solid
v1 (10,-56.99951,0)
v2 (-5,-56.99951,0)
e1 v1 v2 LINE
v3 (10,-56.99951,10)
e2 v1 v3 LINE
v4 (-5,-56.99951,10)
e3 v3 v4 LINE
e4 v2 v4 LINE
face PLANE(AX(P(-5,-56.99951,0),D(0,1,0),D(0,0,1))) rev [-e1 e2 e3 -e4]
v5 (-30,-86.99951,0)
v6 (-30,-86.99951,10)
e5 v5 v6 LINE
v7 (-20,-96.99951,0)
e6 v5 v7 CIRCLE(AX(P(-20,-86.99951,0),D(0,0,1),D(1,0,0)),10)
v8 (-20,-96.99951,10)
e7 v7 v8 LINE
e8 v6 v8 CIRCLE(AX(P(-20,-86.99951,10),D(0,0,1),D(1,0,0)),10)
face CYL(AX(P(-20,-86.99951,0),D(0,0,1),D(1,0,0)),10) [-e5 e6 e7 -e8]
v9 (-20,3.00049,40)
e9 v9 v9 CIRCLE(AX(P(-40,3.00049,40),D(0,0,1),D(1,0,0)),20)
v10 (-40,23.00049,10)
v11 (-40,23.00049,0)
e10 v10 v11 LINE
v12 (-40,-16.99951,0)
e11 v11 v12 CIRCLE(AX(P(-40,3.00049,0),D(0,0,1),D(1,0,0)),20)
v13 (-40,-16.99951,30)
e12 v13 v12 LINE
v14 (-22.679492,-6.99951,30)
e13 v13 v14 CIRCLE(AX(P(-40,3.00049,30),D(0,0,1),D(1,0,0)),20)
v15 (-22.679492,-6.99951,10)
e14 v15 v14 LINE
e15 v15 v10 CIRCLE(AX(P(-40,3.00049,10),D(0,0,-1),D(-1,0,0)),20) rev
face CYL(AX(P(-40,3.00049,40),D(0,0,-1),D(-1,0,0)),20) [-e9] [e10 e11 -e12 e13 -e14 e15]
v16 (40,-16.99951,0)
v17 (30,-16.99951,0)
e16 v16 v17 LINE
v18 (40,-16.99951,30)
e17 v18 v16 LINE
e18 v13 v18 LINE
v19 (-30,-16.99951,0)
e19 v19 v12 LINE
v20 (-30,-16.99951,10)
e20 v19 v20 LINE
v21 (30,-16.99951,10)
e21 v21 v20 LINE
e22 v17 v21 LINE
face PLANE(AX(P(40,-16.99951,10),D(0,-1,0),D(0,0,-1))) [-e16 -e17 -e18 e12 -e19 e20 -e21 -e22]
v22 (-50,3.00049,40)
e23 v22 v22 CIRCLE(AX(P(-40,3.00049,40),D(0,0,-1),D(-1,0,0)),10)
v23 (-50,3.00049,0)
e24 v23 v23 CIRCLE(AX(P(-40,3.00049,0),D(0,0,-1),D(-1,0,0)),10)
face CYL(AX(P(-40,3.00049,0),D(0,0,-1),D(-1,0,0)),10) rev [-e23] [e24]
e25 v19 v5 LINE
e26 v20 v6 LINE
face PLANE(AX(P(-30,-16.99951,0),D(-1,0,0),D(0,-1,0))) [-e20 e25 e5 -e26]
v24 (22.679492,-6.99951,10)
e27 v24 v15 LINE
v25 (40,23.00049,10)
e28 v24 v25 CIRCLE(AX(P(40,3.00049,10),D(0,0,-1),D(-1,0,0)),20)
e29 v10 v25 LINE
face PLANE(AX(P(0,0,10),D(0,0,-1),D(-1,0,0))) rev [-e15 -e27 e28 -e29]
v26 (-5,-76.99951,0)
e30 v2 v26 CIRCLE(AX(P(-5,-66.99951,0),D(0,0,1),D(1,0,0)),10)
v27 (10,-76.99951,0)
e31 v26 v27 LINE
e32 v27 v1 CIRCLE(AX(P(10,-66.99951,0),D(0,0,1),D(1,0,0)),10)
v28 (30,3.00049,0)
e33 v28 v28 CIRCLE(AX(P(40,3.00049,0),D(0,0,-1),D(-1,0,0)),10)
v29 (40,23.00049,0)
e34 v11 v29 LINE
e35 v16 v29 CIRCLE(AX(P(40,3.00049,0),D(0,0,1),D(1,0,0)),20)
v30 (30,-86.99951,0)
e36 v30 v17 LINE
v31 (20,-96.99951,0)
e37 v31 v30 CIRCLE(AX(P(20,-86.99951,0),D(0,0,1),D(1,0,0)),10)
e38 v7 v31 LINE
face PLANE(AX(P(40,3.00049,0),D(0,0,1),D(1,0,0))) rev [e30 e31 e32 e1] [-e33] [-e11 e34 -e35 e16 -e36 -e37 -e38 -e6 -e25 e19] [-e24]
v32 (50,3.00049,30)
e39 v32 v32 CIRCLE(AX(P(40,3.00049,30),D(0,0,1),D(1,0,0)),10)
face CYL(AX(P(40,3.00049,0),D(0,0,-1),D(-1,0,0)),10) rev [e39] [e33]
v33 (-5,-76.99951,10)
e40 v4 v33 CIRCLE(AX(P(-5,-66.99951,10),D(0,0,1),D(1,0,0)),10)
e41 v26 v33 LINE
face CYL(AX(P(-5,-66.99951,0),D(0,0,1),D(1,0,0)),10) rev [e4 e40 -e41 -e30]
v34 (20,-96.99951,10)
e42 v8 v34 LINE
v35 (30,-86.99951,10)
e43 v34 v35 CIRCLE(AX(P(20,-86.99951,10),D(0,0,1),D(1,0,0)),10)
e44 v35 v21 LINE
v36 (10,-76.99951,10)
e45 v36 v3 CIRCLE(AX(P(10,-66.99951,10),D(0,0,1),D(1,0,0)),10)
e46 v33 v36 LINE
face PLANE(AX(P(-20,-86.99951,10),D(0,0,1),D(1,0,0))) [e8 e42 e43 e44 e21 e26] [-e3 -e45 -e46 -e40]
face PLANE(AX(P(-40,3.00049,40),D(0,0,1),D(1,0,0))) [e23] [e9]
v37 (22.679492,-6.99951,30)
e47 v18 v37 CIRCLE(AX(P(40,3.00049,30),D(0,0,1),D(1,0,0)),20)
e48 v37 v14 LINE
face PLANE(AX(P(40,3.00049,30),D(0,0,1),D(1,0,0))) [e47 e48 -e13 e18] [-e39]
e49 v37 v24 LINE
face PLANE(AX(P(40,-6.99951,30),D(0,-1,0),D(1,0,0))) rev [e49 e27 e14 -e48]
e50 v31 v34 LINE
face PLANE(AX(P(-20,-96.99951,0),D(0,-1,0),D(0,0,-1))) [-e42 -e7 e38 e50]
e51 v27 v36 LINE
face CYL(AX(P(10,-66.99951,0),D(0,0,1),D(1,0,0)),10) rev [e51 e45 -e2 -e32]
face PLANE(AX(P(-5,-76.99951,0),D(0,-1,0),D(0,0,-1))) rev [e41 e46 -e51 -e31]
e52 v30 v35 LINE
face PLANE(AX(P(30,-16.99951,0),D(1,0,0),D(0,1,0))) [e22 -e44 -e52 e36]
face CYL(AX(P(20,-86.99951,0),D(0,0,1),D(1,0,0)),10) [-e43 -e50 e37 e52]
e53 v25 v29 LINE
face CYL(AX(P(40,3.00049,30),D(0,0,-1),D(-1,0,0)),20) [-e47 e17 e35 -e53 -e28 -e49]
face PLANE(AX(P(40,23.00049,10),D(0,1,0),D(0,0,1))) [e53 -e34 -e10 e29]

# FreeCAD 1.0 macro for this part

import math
import FreeCAD as App
import Part
import Sketcher
from FreeCAD import Vector

doc = App.newDocument("Part")
params = doc.addObject("Spreadsheet::Sheet", "Params")
for row, (alias, value) in enumerate([
    ("sketch1_diameter", "40 mm"),
    ("pad1_length", "30 mm"),
    ("sketch2_diameter", "40 mm"),
    ("pad2_length", "40 mm"),
    ("sketch3_width", "80 mm"),
    ("sketch3_height", "40 mm"),
    ("pad3_length", "10 mm"),
    ("sketch4_width", "80 mm"),
    ("sketch4_height", "10 mm"),
    ("pad4_length", "20 mm"),
    ("sketch5_radius", "10 mm"),
    ("sketch5_width", "60 mm"),
    ("sketch5_height", "70 mm"),
    ("pad5_length", "10 mm"),
    ("sketch6_radius", "10 mm"),
    ("sketch6_width", "15 mm"),
    ("pocket1_length", "10 mm"),
    ("sketch7_diameter", "20 mm"),
    ("hole_diameter", "20 mm"),
], start=1):
    params.set(f"A{row}", alias)
    params.set(f"B{row}", "=" + value)
    params.setAlias(f"B{row}", alias)

body = doc.addObject("PartDesign::Body", "Body")

sketch1 = body.newObject("Sketcher::SketchObject", "Sketch")
sketch1.AttachmentSupport = (doc.getObject("XY_Plane"), [""])
sketch1.MapMode = "FlatFace"
sketch1.addGeometry(Part.Circle(Vector(40, 3.00049, 0), Vector(0, 0, 1), 20), False)
sketch1.addConstraint([
    Sketcher.Constraint("Diameter", 0, 40.0),
    Sketcher.Constraint("DistanceX", -1, 1, 0, 3, 40.0),
    Sketcher.Constraint("DistanceY", -1, 1, 0, 3, 3.00049),
])
sketch1.setExpression("Constraints[0]", "Params.sketch1_diameter")
pad1 = body.newObject("PartDesign::Pad", "Pad")
pad1.Profile = sketch1
pad1.setExpression("Length", "Params.pad1_length")
body2 = doc.addObject("PartDesign::Body", "Body001")

sketch2 = body2.newObject("Sketcher::SketchObject", "Sketch001")
sketch2.AttachmentSupport = (doc.getObject("XY_Plane001"), [""])
sketch2.MapMode = "FlatFace"
sketch2.addGeometry(Part.Circle(Vector(-40, 3.00049, 0), Vector(0, 0, 1), 20), False)
sketch2.addConstraint([
    Sketcher.Constraint("Diameter", 0, 40.0),
    Sketcher.Constraint("DistanceX", 0, 3, -1, 1, 40.0),
    Sketcher.Constraint("DistanceY", -1, 1, 0, 3, 3.00049),
])
sketch2.setExpression("Constraints[0]", "Params.sketch2_diameter")
pad2 = body2.newObject("PartDesign::Pad", "Pad001")
pad2.Profile = sketch2
pad2.setExpression("Length", "Params.pad2_length")
body.AllowCompound = True
doc.recompute()

boolean = body.newObject("PartDesign::Boolean", "Boolean")
boolean.Type = "Fuse"
boolean.addObjects([body2])

sketch3 = body.newObject("Sketcher::SketchObject", "Sketch002")
sketch3.AttachmentSupport = (doc.getObject("XY_Plane"), [""])
sketch3.MapMode = "FlatFace"
sketch3.addGeometry([
    Part.LineSegment(Vector(40, 23.00049, 0), Vector(40, -16.99951, 0)),
    Part.LineSegment(Vector(40, -16.99951, 0), Vector(-40, -16.99951, 0)),
    Part.LineSegment(Vector(-40, -16.99951, 0), Vector(-40, 23.00049, 0)),
    Part.LineSegment(Vector(-40, 23.00049, 0), Vector(40, 23.00049, 0)),
], False)
sketch3.addConstraint([
    Sketcher.Constraint("Coincident", 0, 2, 1, 1),
    Sketcher.Constraint("Coincident", 1, 2, 2, 1),
    Sketcher.Constraint("Coincident", 2, 2, 3, 1),
    Sketcher.Constraint("Coincident", 3, 2, 0, 1),
    Sketcher.Constraint("Vertical", 0),
    Sketcher.Constraint("Horizontal", 1),
    Sketcher.Constraint("Vertical", 2),
    Sketcher.Constraint("Horizontal", 3),
    Sketcher.Constraint("DistanceX", 1, 2, 1, 1, 80.0),
    Sketcher.Constraint("DistanceY", 0, 2, 0, 1, 40.0),
    Sketcher.Constraint("DistanceX", -1, 1, 0, 2, 40.0),
    Sketcher.Constraint("DistanceY", 0, 2, -1, 1, 16.99951),
])
sketch3.setExpression("Constraints[8]", "Params.sketch3_width")
sketch3.setExpression("Constraints[9]", "Params.sketch3_height")
pad3 = body.newObject("PartDesign::Pad", "Pad002")
pad3.Profile = sketch3
pad3.setExpression("Length", "Params.pad3_length")

sketch4 = body.newObject("Sketcher::SketchObject", "Sketch003")
sketch4.AttachmentSupport = (doc.getObject("XY_Plane"), [""])
sketch4.MapMode = "FlatFace"
sketch4.AttachmentOffset = App.Placement(Vector(0, 0, 10), App.Rotation())
sketch4.addGeometry([
    Part.LineSegment(Vector(-40, -6.99951, 0), Vector(-40, -16.99951, 0)),
    Part.LineSegment(Vector(-40, -16.99951, 0), Vector(40, -16.99951, 0)),
    Part.LineSegment(Vector(40, -16.99951, 0), Vector(40, -6.99951, 0)),
    Part.LineSegment(Vector(40, -6.99951, 0), Vector(-40, -6.99951, 0)),
], False)
sketch4.addConstraint([
    Sketcher.Constraint("Coincident", 0, 2, 1, 1),
    Sketcher.Constraint("Coincident", 1, 2, 2, 1),
    Sketcher.Constraint("Coincident", 2, 2, 3, 1),
    Sketcher.Constraint("Coincident", 3, 2, 0, 1),
    Sketcher.Constraint("Vertical", 0),
    Sketcher.Constraint("Horizontal", 1),
    Sketcher.Constraint("Vertical", 2),
    Sketcher.Constraint("Horizontal", 3),
    Sketcher.Constraint("DistanceX", 1, 1, 1, 2, 80.0),
    Sketcher.Constraint("DistanceY", 0, 2, 0, 1, 10.0),
    Sketcher.Constraint("DistanceX", 0, 2, -1, 1, 40.0),
    Sketcher.Constraint("DistanceY", 0, 2, -1, 1, 16.99951),
])
sketch4.setExpression("Constraints[8]", "Params.sketch4_width")
sketch4.setExpression("Constraints[9]", "Params.sketch4_height")
pad4 = body.newObject("PartDesign::Pad", "Pad003")
pad4.Profile = sketch4
pad4.setExpression("Length", "Params.pad4_length")

sketch5 = body.newObject("Sketcher::SketchObject", "Sketch004")
sketch5.AttachmentSupport = (doc.getObject("XY_Plane"), [""])
sketch5.MapMode = "FlatFace"
sketch5.AttachmentOffset = App.Placement(Vector(0, 0, 10), App.Rotation())
sketch5.addGeometry([
    Part.LineSegment(Vector(30, -16.99951, 0), Vector(-30, -16.99951, 0)),
    Part.LineSegment(Vector(-30, -16.99951, 0), Vector(-30, -86.99951, 0)),
    Part.ArcOfCircle(Part.Circle(Vector(-20, -86.99951, 0), Vector(0, 0, 1), 10), math.radians(180), math.radians(270)),
    Part.LineSegment(Vector(-20, -96.99951, 0), Vector(20, -96.99951, 0)),
    Part.ArcOfCircle(Part.Circle(Vector(20, -86.99951, 0), Vector(0, 0, 1), 10), math.radians(-90), math.radians(0)),
    Part.LineSegment(Vector(30, -86.99951, 0), Vector(30, -16.99951, 0)),
], False)
sketch5.addConstraint([
    Sketcher.Constraint("Coincident", 0, 2, 1, 1),
    Sketcher.Constraint("Tangent", 1, 2, 2, 1),
    Sketcher.Constraint("Tangent", 2, 2, 3, 1),
    Sketcher.Constraint("Tangent", 3, 2, 4, 1),
    Sketcher.Constraint("Tangent", 4, 2, 5, 1),
    Sketcher.Constraint("Coincident", 5, 2, 0, 1),
    Sketcher.Constraint("Horizontal", 0),
    Sketcher.Constraint("Vertical", 1),
    Sketcher.Constraint("Horizontal", 3),
    Sketcher.Constraint("Vertical", 5),
    Sketcher.Constraint("Equal", 2, 4),
    Sketcher.Constraint("Radius", 2, 10.0),
    Sketcher.Constraint("DistanceX", 0, 2, 0, 1, 60.0),
    Sketcher.Constraint("DistanceY", 1, 2, 1, 1, 70.0),
    Sketcher.Constraint("DistanceX", 2, 3, -1, 1, 20.0),
    Sketcher.Constraint("DistanceY", 2, 3, -1, 1, 86.99951),
])
sketch5.setExpression("Constraints[11]", "Params.sketch5_radius")
sketch5.setExpression("Constraints[12]", "Params.sketch5_width")
sketch5.setExpression("Constraints[13]", "Params.sketch5_height")
pad5 = body.newObject("PartDesign::Pad", "Pad004")
pad5.Profile = sketch5
pad5.setExpression("Length", "Params.pad5_length")
pad5.Reversed = True

sketch6 = body.newObject("Sketcher::SketchObject", "Sketch005")
sketch6.AttachmentSupport = (doc.getObject("XY_Plane"), [""])
sketch6.MapMode = "FlatFace"
sketch6.AttachmentOffset = App.Placement(Vector(0, 0, 10), App.Rotation())
sketch6.addGeometry([
    Part.LineSegment(Vector(10, -56.99951, 0), Vector(-5, -56.99951, 0)),
    Part.ArcOfCircle(Part.Circle(Vector(-5, -66.99951, 0), Vector(0, 0, 1), 10), math.radians(90), math.radians(270)),
    Part.LineSegment(Vector(-5, -76.99951, 0), Vector(10, -76.99951, 0)),
    Part.ArcOfCircle(Part.Circle(Vector(10, -66.99951, 0), Vector(0, 0, 1), 10), math.radians(-90), math.radians(90)),
], False)
sketch6.addConstraint([
    Sketcher.Constraint("Tangent", 0, 2, 1, 1),
    Sketcher.Constraint("Tangent", 1, 2, 2, 1),
    Sketcher.Constraint("Tangent", 2, 2, 3, 1),
    Sketcher.Constraint("Tangent", 3, 2, 0, 1),
    Sketcher.Constraint("Horizontal", 0),
    Sketcher.Constraint("Horizontal", 2),
    Sketcher.Constraint("Radius", 1, 10.0),
    Sketcher.Constraint("DistanceX", 0, 2, 0, 1, 15.0),
    Sketcher.Constraint("DistanceX", 1, 3, -1, 1, 5.0),
    Sketcher.Constraint("DistanceY", 1, 3, -1, 1, 66.99951),
])
sketch6.setExpression("Constraints[6]", "Params.sketch6_radius")
sketch6.setExpression("Constraints[7]", "Params.sketch6_width")
pocket1 = body.newObject("PartDesign::Pocket", "Pocket")
pocket1.Profile = sketch6
pocket1.setExpression("Length", "Params.pocket1_length")

sketch7 = body.newObject("Sketcher::SketchObject", "Sketch006")
sketch7.AttachmentSupport = (doc.getObject("XY_Plane"), [""])
sketch7.MapMode = "FlatFace"
sketch7.addGeometry([
    Part.Circle(Vector(40, 3.00049, 0), Vector(0, 0, 1), 10),
    Part.Circle(Vector(-40, 3.00049, 0), Vector(0, 0, 1), 10),
], False)
sketch7.addConstraint([
    Sketcher.Constraint("Equal", 0, 1),
    Sketcher.Constraint("Symmetric", 0, 3, 1, 3, -2),
    Sketcher.Constraint("Diameter", 0, 20.0),
    Sketcher.Constraint("DistanceX", -1, 1, 0, 3, 40.0),
    Sketcher.Constraint("DistanceY", -1, 1, 0, 3, 3.00049),
])
sketch7.setExpression("Constraints[2]", "Params.sketch7_diameter")
doc.recompute()
hole = body.newObject("PartDesign::Hole", "Hole")
hole.Profile = sketch7
hole.ThreadType = "None"
hole.setExpression("Diameter", "Params.hole_diameter")
hole.DepthType = "ThroughAll"
hole.Reversed = True

doc.recompute()
